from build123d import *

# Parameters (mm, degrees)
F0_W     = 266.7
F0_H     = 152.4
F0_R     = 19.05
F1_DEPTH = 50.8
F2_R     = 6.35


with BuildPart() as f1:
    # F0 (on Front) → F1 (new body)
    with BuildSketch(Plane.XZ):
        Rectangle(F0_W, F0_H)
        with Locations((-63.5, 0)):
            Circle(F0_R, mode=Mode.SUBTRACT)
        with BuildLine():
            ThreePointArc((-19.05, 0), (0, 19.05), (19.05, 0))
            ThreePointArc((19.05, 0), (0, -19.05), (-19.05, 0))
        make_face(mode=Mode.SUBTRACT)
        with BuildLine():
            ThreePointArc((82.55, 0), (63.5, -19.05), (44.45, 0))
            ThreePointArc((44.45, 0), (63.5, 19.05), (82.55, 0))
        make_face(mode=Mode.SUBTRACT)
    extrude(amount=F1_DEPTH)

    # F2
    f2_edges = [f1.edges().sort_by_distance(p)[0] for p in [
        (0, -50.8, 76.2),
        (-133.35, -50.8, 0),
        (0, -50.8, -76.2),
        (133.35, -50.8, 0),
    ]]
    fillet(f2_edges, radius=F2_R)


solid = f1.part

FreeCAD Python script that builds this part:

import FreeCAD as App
import Part
import Sketcher

V = App.Vector
Q = App.Units.Quantity


def edges_at(feature, points):
    """Names of the edges that pass closest to the given points."""
    edges = feature.Shape.Edges
    near = lambda p: min(range(len(edges)), key=lambda i: edges[i].distToShape(Part.Vertex(*p))[0])
    return sorted({f"Edge{near(p) + 1}" for p in points})

doc = App.newDocument("Part")
body = doc.addObject("PartDesign::Body", "Body")

sketch1 = body.newObject("Sketcher::SketchObject", "Sketch")
sketch1.AttachmentSupport = (doc.getObject("XZ_Plane"), [""])
sketch1.MapMode = "FlatFace"
sketch1.addGeometry(Part.LineSegment(V(-133.35, 76.2, 0), V(-133.35, -76.2, 0)), False)
sketch1.addGeometry(Part.LineSegment(V(-133.35, -76.2, 0), V(133.35, -76.2, 0)), False)
sketch1.addGeometry(Part.LineSegment(V(133.35, -76.2, 0), V(133.35, 76.2, 0)), False)
sketch1.addGeometry(Part.LineSegment(V(133.35, 76.2, 0), V(-133.35, 76.2, 0)), False)
sketch1.addGeometry(Part.Circle(V(-63.5, 0, 0), V(0, 0, 1), 19.05), False)
sketch1.addGeometry(Part.Circle(V(63.5, 0, 0), V(0, 0, 1), 19.05), False)
sketch1.addGeometry(Part.Circle(V(0, 0, 0), V(0, 0, 1), 19.05), False)
sketch1.addConstraint(Sketcher.Constraint("Coincident", 0, 2, 1, 1))
sketch1.addConstraint(Sketcher.Constraint("Coincident", 1, 2, 2, 1))
sketch1.addConstraint(Sketcher.Constraint("Coincident", 2, 2, 3, 1))
sketch1.addConstraint(Sketcher.Constraint("Coincident", 3, 2, 0, 1))
sketch1.addConstraint(Sketcher.Constraint("Vertical", 0))
sketch1.addConstraint(Sketcher.Constraint("Horizontal", 1))
sketch1.addConstraint(Sketcher.Constraint("Vertical", 2))
sketch1.addConstraint(Sketcher.Constraint("Horizontal", 3))
sketch1.addConstraint(Sketcher.Constraint("Coincident", 6, 3, -1, 1))
sketch1.addConstraint(Sketcher.Constraint("Equal", 4, 5))
sketch1.addConstraint(Sketcher.Constraint("Equal", 5, 6))
sketch1.addConstraint(Sketcher.Constraint("Symmetric", 4, 3, 5, 3, -1, 1))
sketch1.addConstraint(Sketcher.Constraint("Symmetric", 0, 2, 2, 2, -1, 1))
sketch1.addConstraint(Sketcher.Constraint("PointOnObject", 4, 3, -1))
sketch1.addConstraint(Sketcher.Constraint("Diameter", 4, Q("1.5 in")))
sketch1.addConstraint(Sketcher.Constraint("DistanceY", 0, 2, 0, 1, Q("6 in")))
sketch1.addConstraint(Sketcher.Constraint("DistanceX", 1, 1, 1, 2, Q("10.5 in")))
sketch1.addConstraint(Sketcher.Constraint("DistanceX", 4, 3, 5, 3, Q("5 in")))
pad1 = body.newObject("PartDesign::Pad", "Pad")
pad1.Profile = sketch1
pad1.Length = Q("2 in")
doc.recompute()

fillet = body.newObject("PartDesign::Fillet", "Fillet")
fillet.Base = (pad1, edges_at(pad1, [
    (0, -50.8, 76.2),
    (-133.35, -50.8, 0),
    (0, -50.8, -76.2),
    (133.35, -50.8, 0),
]))
fillet.Radius = Q("0.25 in")

doc.recompute()
